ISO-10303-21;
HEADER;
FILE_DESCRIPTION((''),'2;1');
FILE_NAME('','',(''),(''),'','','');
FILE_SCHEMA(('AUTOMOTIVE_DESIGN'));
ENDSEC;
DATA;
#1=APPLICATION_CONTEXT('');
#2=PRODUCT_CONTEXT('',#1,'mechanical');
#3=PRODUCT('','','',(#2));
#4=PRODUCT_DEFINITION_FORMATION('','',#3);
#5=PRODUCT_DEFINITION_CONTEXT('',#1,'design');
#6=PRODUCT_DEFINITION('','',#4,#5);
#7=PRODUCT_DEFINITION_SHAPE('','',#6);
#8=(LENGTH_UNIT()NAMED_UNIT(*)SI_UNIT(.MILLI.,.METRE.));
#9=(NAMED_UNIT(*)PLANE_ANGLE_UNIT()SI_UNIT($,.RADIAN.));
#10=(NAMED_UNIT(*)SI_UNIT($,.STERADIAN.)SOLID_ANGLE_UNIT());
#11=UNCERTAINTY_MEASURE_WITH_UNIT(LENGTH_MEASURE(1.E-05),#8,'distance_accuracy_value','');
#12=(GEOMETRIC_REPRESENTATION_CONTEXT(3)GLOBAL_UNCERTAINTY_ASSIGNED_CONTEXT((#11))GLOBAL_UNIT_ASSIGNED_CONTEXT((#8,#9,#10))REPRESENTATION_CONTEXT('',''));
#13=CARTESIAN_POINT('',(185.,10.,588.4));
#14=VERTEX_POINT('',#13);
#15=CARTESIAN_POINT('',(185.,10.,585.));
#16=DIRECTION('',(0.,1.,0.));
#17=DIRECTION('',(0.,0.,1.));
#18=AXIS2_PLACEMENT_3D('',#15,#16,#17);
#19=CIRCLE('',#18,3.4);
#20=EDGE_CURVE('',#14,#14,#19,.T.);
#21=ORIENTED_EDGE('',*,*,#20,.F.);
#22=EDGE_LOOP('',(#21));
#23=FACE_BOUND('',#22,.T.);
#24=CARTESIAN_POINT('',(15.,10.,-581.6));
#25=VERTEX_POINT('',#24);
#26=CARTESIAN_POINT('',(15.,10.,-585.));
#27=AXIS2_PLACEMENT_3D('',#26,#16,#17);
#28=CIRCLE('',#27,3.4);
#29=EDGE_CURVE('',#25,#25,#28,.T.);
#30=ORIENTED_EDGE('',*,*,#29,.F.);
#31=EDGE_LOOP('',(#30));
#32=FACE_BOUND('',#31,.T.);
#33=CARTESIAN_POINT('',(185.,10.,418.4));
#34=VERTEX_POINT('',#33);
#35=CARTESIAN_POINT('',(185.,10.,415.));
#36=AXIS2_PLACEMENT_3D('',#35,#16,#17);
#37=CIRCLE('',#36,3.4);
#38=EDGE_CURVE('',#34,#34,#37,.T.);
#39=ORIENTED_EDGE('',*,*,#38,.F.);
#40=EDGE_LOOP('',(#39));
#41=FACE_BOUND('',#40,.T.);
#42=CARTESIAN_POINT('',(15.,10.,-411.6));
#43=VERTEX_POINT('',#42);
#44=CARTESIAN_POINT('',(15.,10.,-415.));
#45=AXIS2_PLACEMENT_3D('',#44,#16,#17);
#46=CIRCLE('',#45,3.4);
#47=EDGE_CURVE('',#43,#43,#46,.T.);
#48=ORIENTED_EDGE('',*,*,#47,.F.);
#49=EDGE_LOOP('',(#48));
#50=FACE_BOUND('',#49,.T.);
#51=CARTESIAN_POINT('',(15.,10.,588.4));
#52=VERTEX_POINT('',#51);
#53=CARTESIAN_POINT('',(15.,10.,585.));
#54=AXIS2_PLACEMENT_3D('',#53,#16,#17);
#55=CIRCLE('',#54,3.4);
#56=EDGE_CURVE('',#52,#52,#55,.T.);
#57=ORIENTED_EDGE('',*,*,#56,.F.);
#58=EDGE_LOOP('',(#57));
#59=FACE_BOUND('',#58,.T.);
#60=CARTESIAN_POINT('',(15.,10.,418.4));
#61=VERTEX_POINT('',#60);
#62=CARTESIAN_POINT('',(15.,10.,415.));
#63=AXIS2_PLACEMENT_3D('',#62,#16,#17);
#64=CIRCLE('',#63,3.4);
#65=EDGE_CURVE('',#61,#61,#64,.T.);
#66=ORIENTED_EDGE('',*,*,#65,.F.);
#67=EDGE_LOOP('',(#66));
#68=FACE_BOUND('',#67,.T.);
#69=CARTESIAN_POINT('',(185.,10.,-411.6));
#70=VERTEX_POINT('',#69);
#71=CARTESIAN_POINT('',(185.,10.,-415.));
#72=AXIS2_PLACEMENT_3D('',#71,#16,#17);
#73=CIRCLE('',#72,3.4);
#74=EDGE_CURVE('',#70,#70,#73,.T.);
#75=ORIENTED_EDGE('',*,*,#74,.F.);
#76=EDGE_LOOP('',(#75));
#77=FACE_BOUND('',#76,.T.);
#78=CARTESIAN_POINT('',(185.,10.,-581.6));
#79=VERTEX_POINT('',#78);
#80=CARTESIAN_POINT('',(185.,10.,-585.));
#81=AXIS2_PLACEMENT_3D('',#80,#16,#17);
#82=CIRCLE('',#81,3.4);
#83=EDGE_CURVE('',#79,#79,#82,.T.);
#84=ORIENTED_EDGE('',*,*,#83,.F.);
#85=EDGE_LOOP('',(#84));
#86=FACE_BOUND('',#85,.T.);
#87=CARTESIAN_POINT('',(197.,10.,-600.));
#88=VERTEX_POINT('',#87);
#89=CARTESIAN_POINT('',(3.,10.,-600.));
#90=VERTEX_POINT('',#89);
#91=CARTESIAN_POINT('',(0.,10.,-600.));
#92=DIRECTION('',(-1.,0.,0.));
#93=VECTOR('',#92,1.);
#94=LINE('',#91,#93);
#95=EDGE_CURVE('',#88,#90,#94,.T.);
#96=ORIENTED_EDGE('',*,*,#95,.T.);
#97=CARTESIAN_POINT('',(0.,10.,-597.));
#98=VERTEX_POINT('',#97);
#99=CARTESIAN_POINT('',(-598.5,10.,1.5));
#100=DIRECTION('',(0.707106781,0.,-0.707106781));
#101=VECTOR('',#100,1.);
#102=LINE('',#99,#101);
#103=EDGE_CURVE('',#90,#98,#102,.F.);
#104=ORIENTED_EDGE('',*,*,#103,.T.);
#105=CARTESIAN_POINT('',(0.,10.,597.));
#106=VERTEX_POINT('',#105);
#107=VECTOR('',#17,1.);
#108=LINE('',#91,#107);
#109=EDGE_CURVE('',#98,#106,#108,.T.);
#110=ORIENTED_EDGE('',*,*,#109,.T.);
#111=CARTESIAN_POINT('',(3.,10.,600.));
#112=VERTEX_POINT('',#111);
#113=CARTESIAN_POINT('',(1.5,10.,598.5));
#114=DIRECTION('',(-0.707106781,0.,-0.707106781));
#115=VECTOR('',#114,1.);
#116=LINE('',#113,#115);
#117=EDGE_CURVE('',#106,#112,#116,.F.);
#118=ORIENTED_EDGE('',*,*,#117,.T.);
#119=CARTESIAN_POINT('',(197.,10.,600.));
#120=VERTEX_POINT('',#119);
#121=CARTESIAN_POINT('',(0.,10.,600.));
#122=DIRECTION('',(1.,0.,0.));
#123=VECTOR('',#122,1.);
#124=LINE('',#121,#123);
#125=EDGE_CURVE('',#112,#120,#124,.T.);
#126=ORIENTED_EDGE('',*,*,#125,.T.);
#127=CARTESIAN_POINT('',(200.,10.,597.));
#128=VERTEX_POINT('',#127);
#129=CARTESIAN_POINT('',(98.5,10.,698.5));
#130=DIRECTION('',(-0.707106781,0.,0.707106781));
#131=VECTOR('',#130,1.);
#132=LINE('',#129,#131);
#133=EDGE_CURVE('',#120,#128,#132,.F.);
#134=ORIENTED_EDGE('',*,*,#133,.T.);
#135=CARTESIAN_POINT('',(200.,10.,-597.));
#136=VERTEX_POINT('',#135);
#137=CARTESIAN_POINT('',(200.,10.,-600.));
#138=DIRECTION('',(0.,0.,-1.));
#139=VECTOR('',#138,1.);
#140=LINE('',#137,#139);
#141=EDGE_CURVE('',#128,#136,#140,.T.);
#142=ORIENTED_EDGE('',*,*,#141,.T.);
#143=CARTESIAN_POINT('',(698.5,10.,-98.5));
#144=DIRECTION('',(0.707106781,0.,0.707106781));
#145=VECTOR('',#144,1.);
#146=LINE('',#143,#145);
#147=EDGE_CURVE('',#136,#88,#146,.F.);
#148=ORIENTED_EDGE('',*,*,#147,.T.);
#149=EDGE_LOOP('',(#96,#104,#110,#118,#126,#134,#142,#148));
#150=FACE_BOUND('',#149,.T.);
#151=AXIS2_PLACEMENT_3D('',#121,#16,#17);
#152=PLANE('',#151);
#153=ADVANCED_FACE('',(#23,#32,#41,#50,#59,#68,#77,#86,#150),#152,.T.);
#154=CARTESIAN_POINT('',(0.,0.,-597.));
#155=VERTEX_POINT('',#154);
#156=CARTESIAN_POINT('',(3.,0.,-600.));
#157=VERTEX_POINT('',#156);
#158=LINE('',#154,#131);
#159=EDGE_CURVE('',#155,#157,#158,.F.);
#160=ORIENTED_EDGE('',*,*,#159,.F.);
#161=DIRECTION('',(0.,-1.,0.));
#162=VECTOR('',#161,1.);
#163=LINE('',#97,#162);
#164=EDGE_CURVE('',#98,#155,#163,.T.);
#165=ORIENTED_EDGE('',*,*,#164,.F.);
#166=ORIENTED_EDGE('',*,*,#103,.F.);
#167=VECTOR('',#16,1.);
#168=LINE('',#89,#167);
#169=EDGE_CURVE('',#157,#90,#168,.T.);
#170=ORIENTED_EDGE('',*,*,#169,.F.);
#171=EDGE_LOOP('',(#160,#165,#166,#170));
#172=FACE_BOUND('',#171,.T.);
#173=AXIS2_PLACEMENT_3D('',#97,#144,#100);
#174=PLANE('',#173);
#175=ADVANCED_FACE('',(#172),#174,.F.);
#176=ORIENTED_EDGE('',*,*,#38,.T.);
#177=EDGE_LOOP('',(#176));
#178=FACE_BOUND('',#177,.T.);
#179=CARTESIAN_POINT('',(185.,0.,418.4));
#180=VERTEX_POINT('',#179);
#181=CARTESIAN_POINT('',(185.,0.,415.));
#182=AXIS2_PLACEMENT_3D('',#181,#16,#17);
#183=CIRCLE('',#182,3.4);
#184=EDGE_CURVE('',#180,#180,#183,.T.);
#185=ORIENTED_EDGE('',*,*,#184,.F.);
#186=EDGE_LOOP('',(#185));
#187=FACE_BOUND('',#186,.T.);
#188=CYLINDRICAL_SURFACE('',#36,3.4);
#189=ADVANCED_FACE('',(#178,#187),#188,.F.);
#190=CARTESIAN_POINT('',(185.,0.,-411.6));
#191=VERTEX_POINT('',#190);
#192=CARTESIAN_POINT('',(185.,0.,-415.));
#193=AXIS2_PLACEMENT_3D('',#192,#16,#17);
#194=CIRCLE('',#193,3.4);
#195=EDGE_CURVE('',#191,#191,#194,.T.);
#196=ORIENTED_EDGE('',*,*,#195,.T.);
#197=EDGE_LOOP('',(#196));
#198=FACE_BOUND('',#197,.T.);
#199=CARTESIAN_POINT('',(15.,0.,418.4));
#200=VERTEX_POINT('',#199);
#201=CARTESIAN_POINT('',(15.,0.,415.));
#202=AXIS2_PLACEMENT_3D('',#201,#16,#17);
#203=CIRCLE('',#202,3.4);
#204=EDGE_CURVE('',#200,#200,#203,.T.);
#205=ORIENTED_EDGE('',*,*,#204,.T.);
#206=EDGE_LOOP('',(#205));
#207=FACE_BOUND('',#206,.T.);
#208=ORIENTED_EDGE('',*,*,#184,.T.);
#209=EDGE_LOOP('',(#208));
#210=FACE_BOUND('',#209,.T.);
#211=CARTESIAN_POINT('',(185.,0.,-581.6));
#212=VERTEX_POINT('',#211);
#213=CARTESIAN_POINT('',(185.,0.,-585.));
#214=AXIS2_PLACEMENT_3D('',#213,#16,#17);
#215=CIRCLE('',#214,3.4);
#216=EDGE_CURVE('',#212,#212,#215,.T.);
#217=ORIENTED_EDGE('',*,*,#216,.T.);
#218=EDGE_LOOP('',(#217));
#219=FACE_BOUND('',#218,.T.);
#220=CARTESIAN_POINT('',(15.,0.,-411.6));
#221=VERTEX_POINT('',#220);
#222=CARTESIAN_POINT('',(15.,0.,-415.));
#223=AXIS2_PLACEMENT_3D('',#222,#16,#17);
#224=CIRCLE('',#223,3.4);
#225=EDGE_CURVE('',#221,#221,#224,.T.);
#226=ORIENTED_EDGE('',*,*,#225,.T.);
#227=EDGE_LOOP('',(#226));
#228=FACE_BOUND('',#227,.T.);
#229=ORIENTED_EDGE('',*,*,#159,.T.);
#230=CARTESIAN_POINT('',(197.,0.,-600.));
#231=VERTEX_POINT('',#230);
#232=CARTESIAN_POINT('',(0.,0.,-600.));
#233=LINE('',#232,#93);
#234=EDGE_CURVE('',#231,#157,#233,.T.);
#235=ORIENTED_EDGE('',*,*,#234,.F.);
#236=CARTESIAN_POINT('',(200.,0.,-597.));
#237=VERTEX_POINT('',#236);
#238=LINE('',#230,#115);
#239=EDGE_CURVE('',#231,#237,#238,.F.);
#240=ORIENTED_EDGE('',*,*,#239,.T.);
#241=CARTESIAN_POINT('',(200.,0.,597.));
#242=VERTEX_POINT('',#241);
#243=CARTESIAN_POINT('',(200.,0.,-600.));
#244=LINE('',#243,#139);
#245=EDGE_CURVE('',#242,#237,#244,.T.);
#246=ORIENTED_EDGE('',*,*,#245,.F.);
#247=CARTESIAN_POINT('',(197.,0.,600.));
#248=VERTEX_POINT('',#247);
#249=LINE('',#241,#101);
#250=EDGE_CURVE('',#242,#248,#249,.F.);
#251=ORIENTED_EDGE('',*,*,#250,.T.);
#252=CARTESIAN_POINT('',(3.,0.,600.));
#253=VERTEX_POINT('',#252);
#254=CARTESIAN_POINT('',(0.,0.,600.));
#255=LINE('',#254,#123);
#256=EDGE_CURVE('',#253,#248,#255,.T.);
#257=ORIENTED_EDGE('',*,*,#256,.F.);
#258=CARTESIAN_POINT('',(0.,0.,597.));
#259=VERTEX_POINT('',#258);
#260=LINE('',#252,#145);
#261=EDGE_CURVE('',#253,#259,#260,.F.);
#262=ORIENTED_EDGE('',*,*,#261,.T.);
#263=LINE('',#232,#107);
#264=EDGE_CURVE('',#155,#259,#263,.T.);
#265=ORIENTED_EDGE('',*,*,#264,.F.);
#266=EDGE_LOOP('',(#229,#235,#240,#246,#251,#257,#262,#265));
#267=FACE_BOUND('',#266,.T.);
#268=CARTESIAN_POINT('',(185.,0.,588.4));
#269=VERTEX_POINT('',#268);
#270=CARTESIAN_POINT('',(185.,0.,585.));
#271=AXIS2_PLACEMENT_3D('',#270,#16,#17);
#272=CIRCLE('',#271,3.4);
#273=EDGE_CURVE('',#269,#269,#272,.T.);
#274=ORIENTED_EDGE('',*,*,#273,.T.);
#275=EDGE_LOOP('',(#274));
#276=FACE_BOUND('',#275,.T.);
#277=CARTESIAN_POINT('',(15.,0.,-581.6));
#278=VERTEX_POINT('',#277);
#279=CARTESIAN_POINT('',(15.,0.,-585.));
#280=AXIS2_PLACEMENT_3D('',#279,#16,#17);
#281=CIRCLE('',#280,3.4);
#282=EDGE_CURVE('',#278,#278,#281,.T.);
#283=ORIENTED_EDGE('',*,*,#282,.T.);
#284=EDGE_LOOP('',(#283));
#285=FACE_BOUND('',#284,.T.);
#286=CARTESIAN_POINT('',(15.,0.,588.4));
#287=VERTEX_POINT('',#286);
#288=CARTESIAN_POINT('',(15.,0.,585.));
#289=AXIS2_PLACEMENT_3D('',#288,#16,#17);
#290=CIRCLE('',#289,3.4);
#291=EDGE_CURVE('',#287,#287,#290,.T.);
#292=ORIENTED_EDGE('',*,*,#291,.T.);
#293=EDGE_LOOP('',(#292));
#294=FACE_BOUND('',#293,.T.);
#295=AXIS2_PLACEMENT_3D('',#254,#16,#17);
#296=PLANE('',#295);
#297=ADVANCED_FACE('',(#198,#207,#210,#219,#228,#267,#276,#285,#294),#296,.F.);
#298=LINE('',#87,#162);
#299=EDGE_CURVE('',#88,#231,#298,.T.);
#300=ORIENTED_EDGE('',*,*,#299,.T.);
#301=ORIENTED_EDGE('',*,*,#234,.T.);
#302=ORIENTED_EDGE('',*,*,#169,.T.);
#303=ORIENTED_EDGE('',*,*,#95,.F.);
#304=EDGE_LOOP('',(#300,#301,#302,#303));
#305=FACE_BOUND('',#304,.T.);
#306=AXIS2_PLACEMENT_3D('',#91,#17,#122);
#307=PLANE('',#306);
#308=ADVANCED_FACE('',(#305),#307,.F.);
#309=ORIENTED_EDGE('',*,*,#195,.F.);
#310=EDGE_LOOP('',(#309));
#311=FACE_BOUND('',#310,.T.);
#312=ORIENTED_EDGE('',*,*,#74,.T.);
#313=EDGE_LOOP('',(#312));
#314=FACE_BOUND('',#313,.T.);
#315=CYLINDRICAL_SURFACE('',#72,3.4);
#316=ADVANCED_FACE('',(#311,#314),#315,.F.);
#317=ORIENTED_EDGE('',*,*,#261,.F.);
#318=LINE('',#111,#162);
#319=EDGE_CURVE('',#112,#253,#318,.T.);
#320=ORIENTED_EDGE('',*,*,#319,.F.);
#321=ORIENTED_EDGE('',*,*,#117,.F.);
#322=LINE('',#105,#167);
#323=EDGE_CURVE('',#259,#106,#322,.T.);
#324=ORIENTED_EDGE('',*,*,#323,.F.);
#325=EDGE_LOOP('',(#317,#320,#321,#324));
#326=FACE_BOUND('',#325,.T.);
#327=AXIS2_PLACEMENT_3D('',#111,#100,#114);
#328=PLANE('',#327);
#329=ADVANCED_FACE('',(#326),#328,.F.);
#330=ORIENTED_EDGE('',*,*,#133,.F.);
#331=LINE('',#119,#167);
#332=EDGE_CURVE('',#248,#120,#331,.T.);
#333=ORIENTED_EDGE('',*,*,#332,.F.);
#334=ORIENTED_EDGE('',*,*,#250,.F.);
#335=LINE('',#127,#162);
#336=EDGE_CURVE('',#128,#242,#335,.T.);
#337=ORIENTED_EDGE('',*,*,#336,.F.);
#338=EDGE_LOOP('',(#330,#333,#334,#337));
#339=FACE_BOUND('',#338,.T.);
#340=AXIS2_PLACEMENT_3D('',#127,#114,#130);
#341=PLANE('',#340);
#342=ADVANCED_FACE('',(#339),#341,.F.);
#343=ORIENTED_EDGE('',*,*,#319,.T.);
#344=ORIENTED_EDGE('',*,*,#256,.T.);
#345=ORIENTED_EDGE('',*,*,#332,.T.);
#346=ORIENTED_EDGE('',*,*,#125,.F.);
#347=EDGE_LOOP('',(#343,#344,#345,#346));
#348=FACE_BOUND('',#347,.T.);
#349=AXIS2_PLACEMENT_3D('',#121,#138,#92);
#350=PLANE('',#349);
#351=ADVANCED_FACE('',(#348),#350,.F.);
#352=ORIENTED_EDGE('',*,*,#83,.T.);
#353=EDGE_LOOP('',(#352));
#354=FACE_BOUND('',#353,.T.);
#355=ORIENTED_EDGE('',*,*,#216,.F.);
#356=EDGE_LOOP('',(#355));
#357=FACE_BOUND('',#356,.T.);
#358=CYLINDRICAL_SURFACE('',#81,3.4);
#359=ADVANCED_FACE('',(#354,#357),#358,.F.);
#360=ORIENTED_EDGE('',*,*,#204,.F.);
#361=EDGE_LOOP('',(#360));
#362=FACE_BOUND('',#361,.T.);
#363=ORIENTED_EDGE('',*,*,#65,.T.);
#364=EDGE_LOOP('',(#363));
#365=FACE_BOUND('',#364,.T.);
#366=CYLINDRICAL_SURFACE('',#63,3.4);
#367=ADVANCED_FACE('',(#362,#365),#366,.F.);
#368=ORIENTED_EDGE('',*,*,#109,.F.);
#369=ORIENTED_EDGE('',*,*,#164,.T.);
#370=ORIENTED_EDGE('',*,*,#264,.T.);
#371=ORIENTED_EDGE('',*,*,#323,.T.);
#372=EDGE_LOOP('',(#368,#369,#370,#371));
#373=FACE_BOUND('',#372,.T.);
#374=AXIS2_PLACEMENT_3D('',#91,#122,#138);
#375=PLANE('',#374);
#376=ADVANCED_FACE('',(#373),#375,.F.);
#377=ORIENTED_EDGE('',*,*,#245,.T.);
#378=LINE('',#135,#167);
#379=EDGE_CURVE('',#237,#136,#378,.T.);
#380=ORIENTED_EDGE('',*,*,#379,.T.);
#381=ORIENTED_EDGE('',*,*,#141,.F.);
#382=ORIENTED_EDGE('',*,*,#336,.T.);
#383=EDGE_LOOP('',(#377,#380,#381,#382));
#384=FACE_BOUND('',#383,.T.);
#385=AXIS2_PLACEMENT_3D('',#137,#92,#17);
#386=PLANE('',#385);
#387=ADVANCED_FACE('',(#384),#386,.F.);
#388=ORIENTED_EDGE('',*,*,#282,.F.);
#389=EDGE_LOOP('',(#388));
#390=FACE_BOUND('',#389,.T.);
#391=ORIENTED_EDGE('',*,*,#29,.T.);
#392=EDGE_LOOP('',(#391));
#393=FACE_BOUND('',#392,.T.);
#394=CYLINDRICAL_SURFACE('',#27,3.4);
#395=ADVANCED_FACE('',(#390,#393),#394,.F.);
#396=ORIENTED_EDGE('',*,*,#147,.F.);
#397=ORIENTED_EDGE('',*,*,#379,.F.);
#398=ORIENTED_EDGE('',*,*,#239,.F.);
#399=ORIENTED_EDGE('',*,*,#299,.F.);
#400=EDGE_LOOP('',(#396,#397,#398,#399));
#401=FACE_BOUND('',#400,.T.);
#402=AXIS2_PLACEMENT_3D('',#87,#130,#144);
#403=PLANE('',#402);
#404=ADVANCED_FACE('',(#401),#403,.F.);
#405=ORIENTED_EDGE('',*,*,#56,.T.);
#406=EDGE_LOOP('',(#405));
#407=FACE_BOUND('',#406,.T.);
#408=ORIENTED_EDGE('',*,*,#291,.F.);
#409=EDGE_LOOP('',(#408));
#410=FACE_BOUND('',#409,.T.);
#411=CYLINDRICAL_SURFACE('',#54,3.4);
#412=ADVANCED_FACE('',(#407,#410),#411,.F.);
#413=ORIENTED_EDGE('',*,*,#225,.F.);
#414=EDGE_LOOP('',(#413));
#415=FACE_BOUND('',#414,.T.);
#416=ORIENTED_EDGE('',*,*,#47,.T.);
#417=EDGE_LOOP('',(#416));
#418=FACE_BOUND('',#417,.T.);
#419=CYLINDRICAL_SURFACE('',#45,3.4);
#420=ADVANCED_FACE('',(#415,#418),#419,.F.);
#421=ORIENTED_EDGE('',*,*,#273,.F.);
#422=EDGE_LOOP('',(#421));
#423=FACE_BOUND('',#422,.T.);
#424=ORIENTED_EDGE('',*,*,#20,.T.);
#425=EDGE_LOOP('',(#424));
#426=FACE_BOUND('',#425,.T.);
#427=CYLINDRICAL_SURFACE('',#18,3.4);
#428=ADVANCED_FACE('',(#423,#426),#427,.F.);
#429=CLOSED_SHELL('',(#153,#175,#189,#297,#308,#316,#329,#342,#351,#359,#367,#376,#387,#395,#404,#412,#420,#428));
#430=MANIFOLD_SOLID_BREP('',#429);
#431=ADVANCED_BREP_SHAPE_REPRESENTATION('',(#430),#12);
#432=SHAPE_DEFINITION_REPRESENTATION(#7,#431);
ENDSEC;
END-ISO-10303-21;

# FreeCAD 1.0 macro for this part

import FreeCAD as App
import Part
import Sketcher
from FreeCAD import Vector
Q = App.Units.Quantity


def edges_at(feature, points):
    """Names of the edges that pass closest to the given points."""
    edges = feature.Shape.Edges
    near = lambda p: min(range(len(edges)), key=lambda i: edges[i].distToShape(Part.Vertex(*p))[0])
    return sorted({f"Edge{near(p) + 1}" for p in points})

doc = App.newDocument("Part")
body = doc.addObject("PartDesign::Body", "Body")

# Sketch on XZ plane
sketch1 = doc.addObject("Sketcher::SketchObject", "Sketch")
body.addObject(sketch1)
sketch1.AttachmentSupport = (doc.XZ_Plane, [""])
sketch1.MapMode = "FlatFace"
sketch1.addGeometry(Part.LineSegment(Vector(0, -600, 0), Vector(0, 600, 0)), False)
sketch1.addGeometry(Part.LineSegment(Vector(0, 600, 0), Vector(200, 600, 0)), False)
sketch1.addGeometry(Part.LineSegment(Vector(200, 600, 0), Vector(200, -600, 0)), False)
sketch1.addGeometry(Part.LineSegment(Vector(200, -600, 0), Vector(0, -600, 0)), False)
sketch1.addConstraint(Sketcher.Constraint("Coincident", 0, 2, 1, 1))
sketch1.addConstraint(Sketcher.Constraint("Coincident", 1, 2, 2, 1))
sketch1.addConstraint(Sketcher.Constraint("Coincident", 2, 2, 3, 1))
sketch1.addConstraint(Sketcher.Constraint("Coincident", 3, 2, 0, 1))
sketch1.addConstraint(Sketcher.Constraint("Vertical", 0))
sketch1.addConstraint(Sketcher.Constraint("Horizontal", 1))
sketch1.addConstraint(Sketcher.Constraint("Vertical", 2))
sketch1.addConstraint(Sketcher.Constraint("Horizontal", 3))
sketch1.addConstraint(Sketcher.Constraint("Symmetric", 0, 2, 3, 2, -1, 1))
sketch1.addConstraint(Sketcher.Constraint("DistanceX", 1, 1, 1, 2, Q("200 mm")))
sketch1.addConstraint(Sketcher.Constraint("DistanceY", 0, 1, 0, 2, Q("1200 mm")))
pad1 = doc.addObject("PartDesign::Pad", "Pad")
body.addObject(pad1)
pad1.Profile = sketch1
pad1.Length = 10
pad1.Reversed = True

# Sketch on XZ plane
sketch2 = doc.addObject("Sketcher::SketchObject", "Sketch001")
body.addObject(sketch2)
sketch2.AttachmentSupport = (doc.XZ_Plane, [""])
sketch2.MapMode = "FlatFace"
sketch2.AttachmentOffset = App.Placement(Vector(0, 0, -10), App.Rotation())
sketch2.addGeometry(Part.Circle(Vector(15, -585, 0), Vector(0, 0, 1), 3.4), False)
sketch2.addGeometry(Part.Circle(Vector(15, -415, 0), Vector(0, 0, 1), 3.4), False)
sketch2.addGeometry(Part.Circle(Vector(185, -415, 0), Vector(0, 0, 1), 3.4), False)
sketch2.addGeometry(Part.Circle(Vector(185, -585, 0), Vector(0, 0, 1), 3.4), False)
sketch2.addGeometry(Part.Circle(Vector(185, 415, 0), Vector(0, 0, 1), 3.4), False)
sketch2.addGeometry(Part.Circle(Vector(185, 585, 0), Vector(0, 0, 1), 3.4), False)
sketch2.addGeometry(Part.Circle(Vector(15, 585, 0), Vector(0, 0, 1), 3.4), False)
sketch2.addGeometry(Part.Circle(Vector(15, 415, 0), Vector(0, 0, 1), 3.4), False)
sketch2.addConstraint(Sketcher.Constraint("Equal", 0, 1))
sketch2.addConstraint(Sketcher.Constraint("Equal", 1, 2))
sketch2.addConstraint(Sketcher.Constraint("Equal", 2, 3))
sketch2.addConstraint(Sketcher.Constraint("Equal", 3, 4))
sketch2.addConstraint(Sketcher.Constraint("Equal", 4, 5))
sketch2.addConstraint(Sketcher.Constraint("Equal", 5, 6))
sketch2.addConstraint(Sketcher.Constraint("Equal", 6, 7))
sketch2.addConstraint(Sketcher.Constraint("Symmetric", 2, 3, 4, 3, -1))
sketch2.addConstraint(Sketcher.Constraint("Symmetric", 3, 3, 5, 3, -1))
sketch2.addConstraint(Sketcher.Constraint("Symmetric", 0, 3, 6, 3, -1))
sketch2.addConstraint(Sketcher.Constraint("Symmetric", 1, 3, 7, 3, -1))
sketch2.addConstraint(Sketcher.Constraint("Horizontal", 1, 3, 2, 3))
sketch2.addConstraint(Sketcher.Constraint("Horizontal", 0, 3, 3, 3))
sketch2.addConstraint(Sketcher.Constraint("Vertical", 0, 3, 1, 3))
sketch2.addConstraint(Sketcher.Constraint("Vertical", 2, 3, 3, 3))
sketch2.addConstraint(Sketcher.Constraint("Diameter", 0, Q("6.8 mm")))
sketch2.addConstraint(Sketcher.Constraint("DistanceX", -1, 1, 0, 3, Q("15 mm")))
sketch2.addConstraint(Sketcher.Constraint("DistanceY", 0, 3, -1, 1, Q("585 mm")))
sketch2.addConstraint(Sketcher.Constraint("DistanceY", 1, 3, -1, 1, Q("415 mm")))
sketch2.addConstraint(Sketcher.Constraint("DistanceX", -1, 1, 2, 3, Q("185 mm")))
doc.recompute()
hole = doc.addObject("PartDesign::Hole", "Hole")
body.addObject(hole)
hole.Profile = sketch2
hole.ThreadType = "None"
hole.Diameter = 6.8
hole.DepthType = "ThroughAll"
hole.Reversed = True
doc.recompute()

chamfer = doc.addObject("PartDesign::Chamfer", "Chamfer")
body.addObject(chamfer)
chamfer.Base = (hole, edges_at(hole, [
    (0, 5, -600),
    (200, 5, -600),
    (200, 5, 600),
    (0, 5, 600),
]))
chamfer.Size = 3

doc.recompute()
